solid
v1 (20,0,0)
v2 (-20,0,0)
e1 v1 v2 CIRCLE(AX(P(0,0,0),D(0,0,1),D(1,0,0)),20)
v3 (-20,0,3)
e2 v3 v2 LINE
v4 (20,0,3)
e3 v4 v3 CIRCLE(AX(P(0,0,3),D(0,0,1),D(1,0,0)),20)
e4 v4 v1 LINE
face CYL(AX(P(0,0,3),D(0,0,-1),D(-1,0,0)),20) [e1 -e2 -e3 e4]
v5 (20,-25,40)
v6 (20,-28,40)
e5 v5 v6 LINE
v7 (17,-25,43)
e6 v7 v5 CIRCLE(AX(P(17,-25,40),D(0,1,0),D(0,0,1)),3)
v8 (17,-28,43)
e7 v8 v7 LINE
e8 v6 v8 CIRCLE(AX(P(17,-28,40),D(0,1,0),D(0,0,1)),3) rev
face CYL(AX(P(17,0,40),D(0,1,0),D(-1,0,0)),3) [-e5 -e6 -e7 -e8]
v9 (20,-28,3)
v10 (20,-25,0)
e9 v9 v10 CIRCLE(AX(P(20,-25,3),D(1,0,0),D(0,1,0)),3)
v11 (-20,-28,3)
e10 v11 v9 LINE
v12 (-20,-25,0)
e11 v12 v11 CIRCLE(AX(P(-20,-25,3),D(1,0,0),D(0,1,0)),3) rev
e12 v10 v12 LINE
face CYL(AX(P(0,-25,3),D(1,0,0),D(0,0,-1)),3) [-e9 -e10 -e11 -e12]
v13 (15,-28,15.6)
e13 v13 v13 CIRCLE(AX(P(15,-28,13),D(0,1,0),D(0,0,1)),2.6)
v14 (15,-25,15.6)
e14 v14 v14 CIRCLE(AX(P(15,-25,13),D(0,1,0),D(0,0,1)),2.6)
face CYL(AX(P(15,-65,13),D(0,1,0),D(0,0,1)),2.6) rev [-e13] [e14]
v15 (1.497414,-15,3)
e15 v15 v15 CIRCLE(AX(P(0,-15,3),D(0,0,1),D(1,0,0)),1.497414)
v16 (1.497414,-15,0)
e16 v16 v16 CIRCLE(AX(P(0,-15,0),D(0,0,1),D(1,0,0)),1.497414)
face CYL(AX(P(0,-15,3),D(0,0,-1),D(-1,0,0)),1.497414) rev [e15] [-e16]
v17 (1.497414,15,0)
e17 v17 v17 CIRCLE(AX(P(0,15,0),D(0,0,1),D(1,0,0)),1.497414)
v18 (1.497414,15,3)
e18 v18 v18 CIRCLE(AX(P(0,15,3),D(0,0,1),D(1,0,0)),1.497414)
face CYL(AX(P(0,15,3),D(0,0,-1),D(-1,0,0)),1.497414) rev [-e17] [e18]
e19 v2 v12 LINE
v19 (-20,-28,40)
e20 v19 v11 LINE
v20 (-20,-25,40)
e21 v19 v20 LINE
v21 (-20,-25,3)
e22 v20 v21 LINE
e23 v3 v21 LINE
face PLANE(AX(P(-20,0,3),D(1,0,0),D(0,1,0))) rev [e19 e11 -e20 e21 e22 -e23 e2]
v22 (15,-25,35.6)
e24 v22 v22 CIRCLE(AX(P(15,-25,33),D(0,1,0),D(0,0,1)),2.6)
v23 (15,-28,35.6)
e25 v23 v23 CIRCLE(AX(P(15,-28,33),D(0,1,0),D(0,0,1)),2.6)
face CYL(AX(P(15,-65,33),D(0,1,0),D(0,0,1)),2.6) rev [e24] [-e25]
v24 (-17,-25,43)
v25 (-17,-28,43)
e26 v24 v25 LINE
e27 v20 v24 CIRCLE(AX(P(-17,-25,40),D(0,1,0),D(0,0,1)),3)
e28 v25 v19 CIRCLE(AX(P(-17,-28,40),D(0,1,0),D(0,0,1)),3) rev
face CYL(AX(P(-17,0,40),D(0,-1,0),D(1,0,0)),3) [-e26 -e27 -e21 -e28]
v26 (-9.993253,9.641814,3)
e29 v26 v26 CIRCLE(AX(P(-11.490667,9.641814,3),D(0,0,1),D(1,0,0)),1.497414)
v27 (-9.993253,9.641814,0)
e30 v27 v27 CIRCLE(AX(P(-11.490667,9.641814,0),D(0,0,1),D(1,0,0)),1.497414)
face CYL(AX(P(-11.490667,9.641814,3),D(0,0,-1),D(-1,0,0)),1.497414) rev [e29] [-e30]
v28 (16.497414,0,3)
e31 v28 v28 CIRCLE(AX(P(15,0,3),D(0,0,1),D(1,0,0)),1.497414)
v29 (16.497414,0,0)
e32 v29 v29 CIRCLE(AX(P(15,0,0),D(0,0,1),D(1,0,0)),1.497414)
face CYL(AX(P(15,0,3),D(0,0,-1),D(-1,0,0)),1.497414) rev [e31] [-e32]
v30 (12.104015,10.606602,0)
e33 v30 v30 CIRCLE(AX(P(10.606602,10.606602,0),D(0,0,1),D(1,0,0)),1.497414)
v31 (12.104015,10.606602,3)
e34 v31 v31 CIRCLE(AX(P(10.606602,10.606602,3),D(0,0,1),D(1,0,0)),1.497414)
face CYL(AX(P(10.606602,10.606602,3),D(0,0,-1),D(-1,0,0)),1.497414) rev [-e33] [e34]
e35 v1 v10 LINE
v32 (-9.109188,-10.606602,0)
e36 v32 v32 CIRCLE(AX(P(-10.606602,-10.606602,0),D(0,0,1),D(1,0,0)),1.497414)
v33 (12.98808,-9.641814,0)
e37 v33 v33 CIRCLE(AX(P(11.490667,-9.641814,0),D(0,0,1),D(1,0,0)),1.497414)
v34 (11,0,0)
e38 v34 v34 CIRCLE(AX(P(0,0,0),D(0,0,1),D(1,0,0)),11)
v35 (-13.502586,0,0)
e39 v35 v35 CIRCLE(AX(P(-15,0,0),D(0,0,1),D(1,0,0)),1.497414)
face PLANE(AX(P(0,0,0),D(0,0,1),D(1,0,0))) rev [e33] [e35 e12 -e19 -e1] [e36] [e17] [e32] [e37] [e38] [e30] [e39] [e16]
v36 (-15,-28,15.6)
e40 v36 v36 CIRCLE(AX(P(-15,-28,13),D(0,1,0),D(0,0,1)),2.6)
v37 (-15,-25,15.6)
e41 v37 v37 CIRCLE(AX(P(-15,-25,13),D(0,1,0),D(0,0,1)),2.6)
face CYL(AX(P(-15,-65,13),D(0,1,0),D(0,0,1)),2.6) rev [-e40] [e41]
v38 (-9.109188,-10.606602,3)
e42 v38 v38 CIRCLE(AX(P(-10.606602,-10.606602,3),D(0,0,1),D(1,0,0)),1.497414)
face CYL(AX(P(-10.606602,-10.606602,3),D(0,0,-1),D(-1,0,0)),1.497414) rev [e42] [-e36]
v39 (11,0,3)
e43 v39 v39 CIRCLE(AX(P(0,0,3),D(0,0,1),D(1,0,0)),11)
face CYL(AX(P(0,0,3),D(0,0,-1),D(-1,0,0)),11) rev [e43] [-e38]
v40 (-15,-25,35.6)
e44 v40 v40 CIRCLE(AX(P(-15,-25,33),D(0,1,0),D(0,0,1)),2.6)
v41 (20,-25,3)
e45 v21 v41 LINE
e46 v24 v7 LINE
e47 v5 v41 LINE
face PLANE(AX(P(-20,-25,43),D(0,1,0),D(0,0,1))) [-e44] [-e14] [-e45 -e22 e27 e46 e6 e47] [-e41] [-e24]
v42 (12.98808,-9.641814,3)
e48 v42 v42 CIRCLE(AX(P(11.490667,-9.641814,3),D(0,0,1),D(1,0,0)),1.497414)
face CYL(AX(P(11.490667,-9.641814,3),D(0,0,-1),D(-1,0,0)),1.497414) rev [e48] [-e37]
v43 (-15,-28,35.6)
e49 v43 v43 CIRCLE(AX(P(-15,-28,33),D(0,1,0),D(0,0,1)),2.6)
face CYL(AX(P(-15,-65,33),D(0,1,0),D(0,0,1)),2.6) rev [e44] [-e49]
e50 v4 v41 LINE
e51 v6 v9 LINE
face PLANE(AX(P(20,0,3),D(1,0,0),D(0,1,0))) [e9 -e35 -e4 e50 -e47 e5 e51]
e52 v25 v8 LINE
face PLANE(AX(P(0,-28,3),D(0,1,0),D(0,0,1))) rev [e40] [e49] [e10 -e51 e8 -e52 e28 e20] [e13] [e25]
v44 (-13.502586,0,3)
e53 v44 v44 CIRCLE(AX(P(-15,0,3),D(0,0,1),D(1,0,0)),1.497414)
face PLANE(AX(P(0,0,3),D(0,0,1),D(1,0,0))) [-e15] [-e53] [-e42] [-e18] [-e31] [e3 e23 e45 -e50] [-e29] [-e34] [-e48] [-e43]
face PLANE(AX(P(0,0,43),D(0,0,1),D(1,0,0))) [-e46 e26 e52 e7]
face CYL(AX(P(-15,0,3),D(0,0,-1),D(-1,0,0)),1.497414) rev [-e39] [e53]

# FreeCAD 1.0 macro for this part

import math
import FreeCAD as App
import Part
import Sketcher
from FreeCAD import Vector
Q = App.Units.Quantity


def edges_at(feature, points):
    """Names of the edges that pass closest to the given points."""
    edges = feature.Shape.Edges
    near = lambda p: min(range(len(edges)), key=lambda i: edges[i].distToShape(Part.Vertex(*p))[0])
    return sorted({f"Edge{near(p) + 1}" for p in points})

doc = App.newDocument("Part")
body = doc.addObject("PartDesign::Body", "Body")

sketch1 = body.newObject("Sketcher::SketchObject", "Sketch")
sketch1.AttachmentSupport = (doc.getObject("XY_Plane"), [""])
sketch1.MapMode = "FlatFace"
sketch1.addGeometry([
    Part.ArcOfCircle(Part.Circle(Vector(0, 0, 0), Vector(0, 0, 1), 20), math.radians(0), math.radians(180)),
    Part.LineSegment(Vector(-20, 0, 0), Vector(-20, -28, 0)),
    Part.LineSegment(Vector(-20, -28, 0), Vector(20, -28, 0)),
    Part.LineSegment(Vector(20, -28, 0), Vector(20, 0, 0)),
    Part.ArcOfCircle(Part.Circle(Vector(15, 0, 0), Vector(0, 0, 1), 1.5), math.radians(93), math.radians(180)),
    Part.ArcOfCircle(Part.Circle(Vector(15, 0, 0), Vector(0, 0, 1), 1.5), math.radians(0), math.radians(93)),
    Part.ArcOfCircle(Part.Circle(Vector(15, 0, 0), Vector(0, 0, 1), 1.5), math.radians(-93), math.radians(0)),
    Part.ArcOfCircle(Part.Circle(Vector(15, 0, 0), Vector(0, 0, 1), 1.5), math.radians(180), math.radians(267)),
    Part.ArcOfCircle(Part.Circle(Vector(-15, 0, 0), Vector(0, 0, 1), 1.5), math.radians(87), math.radians(180)),
    Part.ArcOfCircle(Part.Circle(Vector(-15, 0, 0), Vector(0, 0, 1), 1.5), math.radians(0), math.radians(87)),
    Part.ArcOfCircle(Part.Circle(Vector(-15, 0, 0), Vector(0, 0, 1), 1.5), math.radians(-87), math.radians(0)),
    Part.ArcOfCircle(Part.Circle(Vector(-15, 0, 0), Vector(0, 0, 1), 1.5), math.radians(180), math.radians(273)),
    Part.ArcOfCircle(Part.Circle(Vector(-10.61, -10.61, 0), Vector(0, 0, 1), 1.5), math.radians(0), math.radians(132)),
    Part.ArcOfCircle(Part.Circle(Vector(-10.61, -10.61, 0), Vector(0, 0, 1), 1.5), math.radians(-42), math.radians(0)),
    Part.ArcOfCircle(Part.Circle(Vector(-10.61, -10.61, 0), Vector(0, 0, 1), 1.5), math.radians(132), math.radians(318)),
    Part.ArcOfCircle(Part.Circle(Vector(0, -15, 0), Vector(0, 0, 1), 1.5), math.radians(3), math.radians(177)),
    Part.ArcOfCircle(Part.Circle(Vector(0, -15, 0), Vector(0, 0, 1), 1.5), math.radians(0), math.radians(2.86)),
    Part.ArcOfCircle(Part.Circle(Vector(0, -15, 0), Vector(0, 0, 1), 1.5), math.radians(177), math.radians(360)),
    Part.ArcOfCircle(Part.Circle(Vector(11.49, -9.64, 0), Vector(0, 0, 1), 1.5), math.radians(53), math.radians(227)),
    Part.ArcOfCircle(Part.Circle(Vector(11.49, -9.64, 0), Vector(0, 0, 1), 1.5), math.radians(0), math.radians(53)),
    Part.ArcOfCircle(Part.Circle(Vector(11.49, -9.64, 0), Vector(0, 0, 1), 1.5), math.radians(-133), math.radians(0)),
    Part.ArcOfCircle(Part.Circle(Vector(10.61, 10.61, 0), Vector(0, 0, 1), 1.5), math.radians(138), math.radians(312)),
    Part.ArcOfCircle(Part.Circle(Vector(10.61, 10.61, 0), Vector(0, 0, 1), 1.5), math.radians(0), math.radians(138)),
    Part.ArcOfCircle(Part.Circle(Vector(10.61, 10.61, 0), Vector(0, 0, 1), 1.5), math.radians(-48), math.radians(0)),
    Part.ArcOfCircle(Part.Circle(Vector(0, 15, 0), Vector(0, 0, 1), 1.5), math.radians(-177), math.radians(-3)),
    Part.ArcOfCircle(Part.Circle(Vector(0, 15, 0), Vector(0, 0, 1), 1.5), math.radians(0), math.radians(183)),
    Part.ArcOfCircle(Part.Circle(Vector(0, 15, 0), Vector(0, 0, 1), 1.5), math.radians(-2.86), math.radians(0)),
    Part.ArcOfCircle(Part.Circle(Vector(-11.49, 9.64, 0), Vector(0, 0, 1), 1.5), math.radians(0), math.radians(47)),
    Part.ArcOfCircle(Part.Circle(Vector(-11.49, 9.64, 0), Vector(0, 0, 1), 1.5), math.radians(-127), math.radians(0)),
    Part.ArcOfCircle(Part.Circle(Vector(-11.49, 9.64, 0), Vector(0, 0, 1), 1.5), math.radians(47), math.radians(233)),
    Part.Circle(Vector(0, 0, 0), Vector(0, 0, 1), 11),
], False)
sketch1.addConstraint([
    Sketcher.Constraint("Tangent", 0, 2, 1, 1),
    Sketcher.Constraint("Coincident", 1, 2, 2, 1),
    Sketcher.Constraint("Coincident", 2, 2, 3, 1),
    Sketcher.Constraint("Tangent", 3, 2, 0, 1),
    Sketcher.Constraint("Tangent", 4, 1, 5, 2),
    Sketcher.Constraint("Tangent", 5, 1, 6, 2),
    Sketcher.Constraint("Tangent", 6, 1, 7, 2),
    Sketcher.Constraint("Tangent", 7, 1, 4, 2),
    Sketcher.Constraint("Tangent", 8, 1, 9, 2),
    Sketcher.Constraint("Tangent", 9, 1, 10, 2),
    Sketcher.Constraint("Tangent", 10, 1, 11, 2),
    Sketcher.Constraint("Tangent", 11, 1, 8, 2),
    Sketcher.Constraint("Tangent", 12, 1, 13, 2),
    Sketcher.Constraint("Tangent", 13, 1, 14, 2),
    Sketcher.Constraint("Tangent", 14, 1, 12, 2),
    Sketcher.Constraint("Tangent", 15, 1, 16, 2),
    Sketcher.Constraint("Tangent", 16, 1, 17, 2),
    Sketcher.Constraint("Tangent", 17, 1, 15, 2),
    Sketcher.Constraint("Tangent", 18, 1, 19, 2),
    Sketcher.Constraint("Tangent", 19, 1, 20, 2),
    Sketcher.Constraint("Tangent", 20, 1, 18, 2),
    Sketcher.Constraint("Tangent", 21, 1, 22, 2),
    Sketcher.Constraint("Tangent", 22, 1, 23, 2),
    Sketcher.Constraint("Tangent", 23, 1, 21, 2),
    Sketcher.Constraint("Tangent", 24, 1, 25, 2),
    Sketcher.Constraint("Tangent", 25, 1, 26, 2),
    Sketcher.Constraint("Tangent", 26, 1, 24, 2),
    Sketcher.Constraint("Tangent", 27, 1, 28, 2),
    Sketcher.Constraint("Tangent", 28, 1, 29, 2),
    Sketcher.Constraint("Tangent", 29, 1, 27, 2),
    Sketcher.Constraint("Vertical", 1),
    Sketcher.Constraint("Horizontal", 2),
    Sketcher.Constraint("Vertical", 3),
    Sketcher.Constraint("Coincident", 0, 3, -1, 1),
    Sketcher.Constraint("Coincident", 30, 3, -1, 1),
    Sketcher.Constraint("Equal", 4, 5),
    Sketcher.Constraint("Equal", 7, 8),
    Sketcher.Constraint("Equal", 8, 9),
    Sketcher.Constraint("Equal", 11, 12),
    Sketcher.Constraint("Equal", 14, 15),
    Sketcher.Constraint("Equal", 17, 18),
    Sketcher.Constraint("Equal", 20, 21),
    Sketcher.Constraint("Equal", 23, 24),
    Sketcher.Constraint("Equal", 26, 27),
    Sketcher.Constraint("Symmetric", 4, 3, 8, 3, -1, 1),
    Sketcher.Constraint("Symmetric", 12, 3, 21, 3, -1, 1),
    Sketcher.Constraint("Symmetric", 15, 3, 24, 3, -1, 1),
    Sketcher.Constraint("Symmetric", 18, 3, 27, 3, -1, 1),
    Sketcher.Constraint("Symmetric", 4, 1, 8, 1, -2),
    Sketcher.Constraint("Symmetric", 15, 1, 17, 1, -2),
    Sketcher.Constraint("PointOnObject", 5, 1, -1),
    Sketcher.Constraint("PointOnObject", 7, 1, -1),
    Sketcher.Constraint("PointOnObject", 9, 1, -1),
    Sketcher.Constraint("PointOnObject", 11, 1, -1),
    Sketcher.Constraint("Horizontal", 6, 1, 10, 1),
    Sketcher.Constraint("Horizontal", 14, 3, 12, 1),
    Sketcher.Constraint("Horizontal", 17, 3, 16, 1),
    Sketcher.Constraint("Horizontal", 20, 3, 19, 1),
    Sketcher.Constraint("Horizontal", 23, 3, 22, 1),
    Sketcher.Constraint("Horizontal", 26, 3, 25, 1),
    Sketcher.Constraint("Horizontal", 24, 1, 26, 1),
    Sketcher.Constraint("Horizontal", 29, 3, 27, 1),
    Sketcher.Constraint("Vertical", 4, 1, 6, 1),
    Sketcher.Constraint("Vertical", 17, 1, 24, 1),
    Sketcher.Constraint("Diameter", 30, Q("22 mm")),
    Sketcher.Constraint("Radius", 0, Q("20 mm")),
    Sketcher.Constraint("DistanceY", 1, 2, 1, 1, Q("28 mm")),
    Sketcher.Constraint("DistanceX", -1, 1, 4, 3, Q("15 mm")),
    Sketcher.Constraint("DistanceY", 15, 3, -1, 1, Q("15 mm")),
    Sketcher.Constraint("Radius", 4, Q("1.497414 mm")),
    Sketcher.Constraint("DistanceX", 12, 3, -1, 1, Q("10.606602 mm")),
    Sketcher.Constraint("DistanceY", 12, 3, -1, 1, Q("10.606602 mm")),
    Sketcher.Constraint("DistanceY", 19, 3, 18, 1, Q("1.193699 mm")),
    Sketcher.Constraint("DistanceY", 28, 1, 27, 3, Q("1.193699 mm")),
    Sketcher.Constraint("DistanceX", -1, 1, 4, 1, Q("14.925258 mm")),
    Sketcher.Constraint("DistanceX", 13, 1, -1, 1, Q("9.49624 mm")),
    Sketcher.Constraint("DistanceY", 14, 1, -1, 1, Q("9.49624 mm")),
    Sketcher.Constraint("DistanceY", 15, 1, -1, 1, Q("14.925258 mm")),
    Sketcher.Constraint("DistanceX", -1, 1, 18, 1, Q("12.39473 mm")),
    Sketcher.Constraint("DistanceX", -1, 1, 21, 1, Q("9.49624 mm")),
    Sketcher.Constraint("DistanceY", -1, 1, 23, 1, Q("9.49624 mm")),
    Sketcher.Constraint("DistanceY", 18, 1, 6, 1, Q("6.952568 mm")),
    Sketcher.Constraint("DistanceX", 20, 1, 19, 1, Q("2.515988 mm")),
    Sketcher.Constraint("DistanceX", 29, 1, 27, 1, Q("0.478839 mm")),
])
pad1 = body.newObject("PartDesign::Pad", "Pad")
pad1.Profile = sketch1
pad1.Length = 3

sketch2 = body.newObject("Sketcher::SketchObject", "Sketch001")
sketch2.AttachmentSupport = (doc.getObject("XY_Plane"), [""])
sketch2.MapMode = "FlatFace"
sketch2.AttachmentOffset = App.Placement(Vector(0, 0, 3), App.Rotation())
sketch2.addGeometry([
    Part.LineSegment(Vector(-20, -25, 0), Vector(-20, -28, 0)),
    Part.LineSegment(Vector(-20, -28, 0), Vector(20, -28, 0)),
    Part.LineSegment(Vector(20, -28, 0), Vector(20, -25, 0)),
    Part.LineSegment(Vector(20, -25, 0), Vector(-20, -25, 0)),
], False)
sketch2.addConstraint([
    Sketcher.Constraint("Coincident", 0, 2, 1, 1),
    Sketcher.Constraint("Coincident", 1, 2, 2, 1),
    Sketcher.Constraint("Coincident", 2, 2, 3, 1),
    Sketcher.Constraint("Coincident", 3, 2, 0, 1),
    Sketcher.Constraint("Vertical", 0),
    Sketcher.Constraint("Horizontal", 1),
    Sketcher.Constraint("Vertical", 2),
    Sketcher.Constraint("Horizontal", 3),
    Sketcher.Constraint("DistanceX", 1, 1, 1, 2, Q("40 mm")),
    Sketcher.Constraint("DistanceY", 0, 2, 0, 1, Q("3 mm")),
    Sketcher.Constraint("DistanceX", 0, 2, -1, 1, Q("20 mm")),
    Sketcher.Constraint("DistanceY", 0, 2, -1, 1, Q("28 mm")),
])
pad2 = body.newObject("PartDesign::Pad", "Pad001")
pad2.Profile = sketch2
pad2.Length = 40

sketch3 = body.newObject("Sketcher::SketchObject", "Sketch002")
sketch3.AttachmentSupport = (doc.getObject("XZ_Plane"), [""])
sketch3.MapMode = "FlatFace"
sketch3.AttachmentOffset = App.Placement(Vector(0, 0, 25), App.Rotation())
sketch3.addGeometry([
    Part.Circle(Vector(-15, 13, 0), Vector(0, 0, 1), 2.6),
    Part.Circle(Vector(-15, 33, 0), Vector(0, 0, 1), 2.6),
    Part.Circle(Vector(15, 33, 0), Vector(0, 0, 1), 2.6),
    Part.Circle(Vector(15, 13, 0), Vector(0, 0, 1), 2.6),
], False)
sketch3.addConstraint([
    Sketcher.Constraint("Equal", 0, 1),
    Sketcher.Constraint("Equal", 1, 2),
    Sketcher.Constraint("Equal", 2, 3),
    Sketcher.Constraint("Symmetric", 1, 3, 2, 3, -2),
    Sketcher.Constraint("Symmetric", 0, 3, 3, 3, -2),
    Sketcher.Constraint("Vertical", 0, 3, 1, 3),
    Sketcher.Constraint("Diameter", 0, Q("5.2 mm")),
    Sketcher.Constraint("DistanceX", 0, 3, -1, 1, Q("15 mm")),
    Sketcher.Constraint("DistanceY", -1, 1, 0, 3, Q("13 mm")),
    Sketcher.Constraint("DistanceY", -1, 1, 1, 3, Q("33 mm")),
])
pocket1 = body.newObject("PartDesign::Pocket", "Pocket")
pocket1.Profile = sketch3
pocket1.Length = 40
pocket1.Reversed = True
doc.recompute()

fillet = body.newObject("PartDesign::Fillet", "Fillet")
fillet.Base = (pocket1, edges_at(pocket1, [(0, -28, 0), (-20, -26.5, 43), (20, -26.5, 43)]))
fillet.Radius = 3

doc.recompute()
